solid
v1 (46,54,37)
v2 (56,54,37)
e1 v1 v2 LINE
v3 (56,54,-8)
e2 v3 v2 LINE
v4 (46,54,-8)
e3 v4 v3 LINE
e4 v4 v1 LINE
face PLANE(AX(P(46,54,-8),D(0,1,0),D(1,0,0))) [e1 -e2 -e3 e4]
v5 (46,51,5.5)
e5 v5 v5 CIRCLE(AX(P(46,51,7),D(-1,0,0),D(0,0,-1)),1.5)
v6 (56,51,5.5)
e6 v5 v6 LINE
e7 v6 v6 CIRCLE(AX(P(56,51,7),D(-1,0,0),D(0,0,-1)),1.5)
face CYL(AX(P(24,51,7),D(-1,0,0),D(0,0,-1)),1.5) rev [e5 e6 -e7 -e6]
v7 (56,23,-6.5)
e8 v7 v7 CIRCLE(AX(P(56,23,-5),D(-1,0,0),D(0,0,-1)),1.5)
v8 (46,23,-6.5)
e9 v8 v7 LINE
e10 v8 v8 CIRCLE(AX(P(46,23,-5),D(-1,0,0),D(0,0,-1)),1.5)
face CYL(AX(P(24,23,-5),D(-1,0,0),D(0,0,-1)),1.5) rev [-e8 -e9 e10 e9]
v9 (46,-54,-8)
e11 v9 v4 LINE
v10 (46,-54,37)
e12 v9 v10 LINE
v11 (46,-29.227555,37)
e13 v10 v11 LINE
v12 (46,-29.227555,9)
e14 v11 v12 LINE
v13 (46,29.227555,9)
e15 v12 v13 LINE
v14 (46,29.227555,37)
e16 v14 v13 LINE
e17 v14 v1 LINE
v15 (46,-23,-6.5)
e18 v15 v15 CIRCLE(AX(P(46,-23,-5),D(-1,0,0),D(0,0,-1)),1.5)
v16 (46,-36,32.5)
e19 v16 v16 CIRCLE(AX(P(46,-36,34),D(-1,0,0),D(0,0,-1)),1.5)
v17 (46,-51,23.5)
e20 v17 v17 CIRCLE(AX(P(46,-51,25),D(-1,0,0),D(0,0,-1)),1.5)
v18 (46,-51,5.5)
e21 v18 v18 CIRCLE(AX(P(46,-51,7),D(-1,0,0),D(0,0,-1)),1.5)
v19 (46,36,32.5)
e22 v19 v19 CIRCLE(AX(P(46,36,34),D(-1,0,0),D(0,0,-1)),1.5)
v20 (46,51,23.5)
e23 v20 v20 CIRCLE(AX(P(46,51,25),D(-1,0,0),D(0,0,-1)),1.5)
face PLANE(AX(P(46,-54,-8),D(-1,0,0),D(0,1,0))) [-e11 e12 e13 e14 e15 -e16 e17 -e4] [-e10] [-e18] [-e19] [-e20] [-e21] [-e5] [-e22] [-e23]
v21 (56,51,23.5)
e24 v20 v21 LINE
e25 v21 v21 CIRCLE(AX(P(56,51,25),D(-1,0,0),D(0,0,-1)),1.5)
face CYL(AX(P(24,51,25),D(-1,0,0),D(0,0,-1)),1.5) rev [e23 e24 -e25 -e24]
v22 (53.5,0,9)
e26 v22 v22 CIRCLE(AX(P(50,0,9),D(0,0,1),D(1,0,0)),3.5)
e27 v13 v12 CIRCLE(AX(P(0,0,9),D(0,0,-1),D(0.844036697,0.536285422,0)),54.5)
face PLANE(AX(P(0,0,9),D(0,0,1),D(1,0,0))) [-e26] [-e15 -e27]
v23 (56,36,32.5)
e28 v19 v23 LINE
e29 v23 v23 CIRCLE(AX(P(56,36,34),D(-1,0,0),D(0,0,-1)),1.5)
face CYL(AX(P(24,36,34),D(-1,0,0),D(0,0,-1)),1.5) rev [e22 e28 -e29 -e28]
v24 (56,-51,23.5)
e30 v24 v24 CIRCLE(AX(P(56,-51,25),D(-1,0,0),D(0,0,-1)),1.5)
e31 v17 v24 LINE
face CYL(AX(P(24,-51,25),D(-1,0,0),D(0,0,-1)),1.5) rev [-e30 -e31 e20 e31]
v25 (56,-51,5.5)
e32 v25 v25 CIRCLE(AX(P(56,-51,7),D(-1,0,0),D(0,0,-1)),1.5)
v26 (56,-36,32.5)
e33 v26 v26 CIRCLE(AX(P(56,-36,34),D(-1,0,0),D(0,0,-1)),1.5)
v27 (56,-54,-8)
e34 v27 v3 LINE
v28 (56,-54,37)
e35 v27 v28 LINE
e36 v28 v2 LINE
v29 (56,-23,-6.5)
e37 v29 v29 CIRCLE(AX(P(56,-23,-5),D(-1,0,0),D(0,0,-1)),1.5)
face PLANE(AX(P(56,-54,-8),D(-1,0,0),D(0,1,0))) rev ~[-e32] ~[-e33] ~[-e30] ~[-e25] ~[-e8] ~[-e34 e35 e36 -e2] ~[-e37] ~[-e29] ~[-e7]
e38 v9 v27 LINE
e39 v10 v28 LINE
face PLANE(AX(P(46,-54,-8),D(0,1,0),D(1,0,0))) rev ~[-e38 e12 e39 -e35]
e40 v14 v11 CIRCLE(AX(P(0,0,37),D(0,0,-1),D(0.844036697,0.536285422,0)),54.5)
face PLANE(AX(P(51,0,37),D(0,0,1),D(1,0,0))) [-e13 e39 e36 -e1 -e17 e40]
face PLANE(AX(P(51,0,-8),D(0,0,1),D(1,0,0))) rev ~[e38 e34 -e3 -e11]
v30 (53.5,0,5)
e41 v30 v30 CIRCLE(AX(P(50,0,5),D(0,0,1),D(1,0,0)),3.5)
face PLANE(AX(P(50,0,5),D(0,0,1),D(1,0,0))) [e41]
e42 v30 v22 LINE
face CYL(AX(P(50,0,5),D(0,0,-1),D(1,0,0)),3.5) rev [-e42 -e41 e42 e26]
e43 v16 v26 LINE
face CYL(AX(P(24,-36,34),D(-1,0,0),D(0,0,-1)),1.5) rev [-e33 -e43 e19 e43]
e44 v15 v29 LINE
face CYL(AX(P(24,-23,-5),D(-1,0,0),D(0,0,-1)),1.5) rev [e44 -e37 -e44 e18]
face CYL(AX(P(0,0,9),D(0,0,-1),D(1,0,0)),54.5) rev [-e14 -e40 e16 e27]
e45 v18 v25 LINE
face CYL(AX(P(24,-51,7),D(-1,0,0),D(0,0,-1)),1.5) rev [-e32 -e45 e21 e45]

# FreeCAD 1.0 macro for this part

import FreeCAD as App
import Part
import Sketcher

V = App.Vector


def add_polygon(sketch, points):
    """Adds a closed chain of lines whose ends are joined by coincident constraints."""
    first, n = sketch.GeometryCount, len(points)
    for a, b in zip(points, points[1:] + points[:1]):
        sketch.addGeometry(Part.LineSegment(App.Vector(*a, 0), App.Vector(*b, 0)), False)
    for i in range(n):
        sketch.addConstraint(Sketcher.Constraint("Coincident", first + i, 2, first + (i + 1) % n, 1))

doc = App.newDocument("Part")
body = doc.addObject("PartDesign::Body", "Body")

sketch1 = body.newObject("Sketcher::SketchObject", "Sketch")
sketch1.AttachmentSupport = (doc.getObject("XY_Plane"), [""])
sketch1.MapMode = "FlatFace"
sketch1.AttachmentOffset = App.Placement(V(0, 0, 5), App.Rotation())
sketch1.addGeometry(Part.Circle(V(50, 0, 0), V(0, 0, 1), 3.5), False)
sketch1.addConstraint([
    Sketcher.Constraint("PointOnObject", 0, 3, -1),
    Sketcher.Constraint("Diameter", 0, 7.0),
    Sketcher.Constraint("DistanceX", -1, 1, 0, 3, 50.0),
])
pad1 = body.newObject("PartDesign::Pad", "Pad")
pad1.Profile = sketch1
pad1.Length = 4
body2 = doc.addObject("PartDesign::Body", "Body001")

sketch2 = body2.newObject("Sketcher::SketchObject", "Sketch001")
sketch2.AttachmentSupport = (doc.getObject("XY_Plane001"), [""])
sketch2.MapMode = "FlatFace"
sketch2.AttachmentOffset = App.Placement(V(0, 0, 9), App.Rotation())
sketch2.addGeometry(Part.Circle(V(0, 0, 0), V(0, 0, 1), 54), False)
sketch2.addConstraint([
    Sketcher.Constraint("Coincident", 0, 3, -1, 1),
    Sketcher.Constraint("Diameter", 0, 109.0),
])
pad2 = body2.newObject("PartDesign::Pad", "Pad001")
pad2.Profile = sketch2
pad2.Length = 28
body3 = doc.addObject("PartDesign::Body", "Body002")

sketch3 = body3.newObject("Sketcher::SketchObject", "Sketch002")
sketch3.AttachmentSupport = (doc.getObject("YZ_Plane002"), [""])
sketch3.MapMode = "FlatFace"
sketch3.AttachmentOffset = App.Placement(V(0, 0, 24), App.Rotation())
sketch3.addGeometry(Part.Circle(V(-51, 25, 0), V(0, 0, 1), 1.5), False)
sketch3.addConstraint([
    Sketcher.Constraint("Diameter", 0, 3.0),
    Sketcher.Constraint("DistanceX", 0, 3, -1, 1, 51.0),
    Sketcher.Constraint("DistanceY", -1, 1, 0, 3, 25.0),
])
pad3 = body3.newObject("PartDesign::Pad", "Pad002")
pad3.Profile = sketch3
pad3.Length = 100
body4 = doc.addObject("PartDesign::Body", "Body003")

sketch4 = body4.newObject("Sketcher::SketchObject", "Sketch003")
sketch4.AttachmentSupport = (doc.getObject("YZ_Plane003"), [""])
sketch4.MapMode = "FlatFace"
sketch4.AttachmentOffset = App.Placement(V(0, 0, 24), App.Rotation())
sketch4.addGeometry(Part.Circle(V(36, 34, 0), V(0, 0, 1), 1.5), False)
sketch4.addConstraint([
    Sketcher.Constraint("Diameter", 0, 3.0),
    Sketcher.Constraint("DistanceX", -1, 1, 0, 3, 36.0),
    Sketcher.Constraint("DistanceY", -1, 1, 0, 3, 34.0),
])
pad4 = body4.newObject("PartDesign::Pad", "Pad003")
pad4.Profile = sketch4
pad4.Length = 100
body5 = doc.addObject("PartDesign::Body", "Body004")

sketch5 = body5.newObject("Sketcher::SketchObject", "Sketch004")
sketch5.AttachmentSupport = (doc.getObject("YZ_Plane004"), [""])
sketch5.MapMode = "FlatFace"
sketch5.AttachmentOffset = App.Placement(V(0, 0, 24), App.Rotation())
sketch5.addGeometry(Part.Circle(V(-36, 34, 0), V(0, 0, 1), 1.5), False)
sketch5.addConstraint([
    Sketcher.Constraint("Diameter", 0, 3.0),
    Sketcher.Constraint("DistanceX", 0, 3, -1, 1, 36.0),
    Sketcher.Constraint("DistanceY", -1, 1, 0, 3, 34.0),
])
pad5 = body5.newObject("PartDesign::Pad", "Pad004")
pad5.Profile = sketch5
pad5.Length = 100
body6 = doc.addObject("PartDesign::Body", "Body005")

sketch6 = body6.newObject("Sketcher::SketchObject", "Sketch005")
sketch6.AttachmentSupport = (doc.getObject("YZ_Plane005"), [""])
sketch6.MapMode = "FlatFace"
sketch6.AttachmentOffset = App.Placement(V(0, 0, 24), App.Rotation())
sketch6.addGeometry(Part.Circle(V(-23, -5, 0), V(0, 0, 1), 1.5), False)
sketch6.addConstraint([
    Sketcher.Constraint("Diameter", 0, 3.0),
    Sketcher.Constraint("DistanceX", 0, 3, -1, 1, 23.0),
    Sketcher.Constraint("DistanceY", 0, 3, -1, 1, 5.0),
])
pad6 = body6.newObject("PartDesign::Pad", "Pad005")
pad6.Profile = sketch6
pad6.Length = 100
body7 = doc.addObject("PartDesign::Body", "Body006")

sketch7 = body7.newObject("Sketcher::SketchObject", "Sketch006")
sketch7.AttachmentSupport = (doc.getObject("YZ_Plane006"), [""])
sketch7.MapMode = "FlatFace"
sketch7.AttachmentOffset = App.Placement(V(0, 0, 24), App.Rotation())
sketch7.addGeometry(Part.Circle(V(51, 7, 0), V(0, 0, 1), 1.5), False)
sketch7.addConstraint([
    Sketcher.Constraint("Diameter", 0, 3.0),
    Sketcher.Constraint("DistanceX", -1, 1, 0, 3, 51.0),
    Sketcher.Constraint("DistanceY", -1, 1, 0, 3, 7.0),
])
pad7 = body7.newObject("PartDesign::Pad", "Pad006")
pad7.Profile = sketch7
pad7.Length = 100
body8 = doc.addObject("PartDesign::Body", "Body007")

sketch8 = body8.newObject("Sketcher::SketchObject", "Sketch007")
sketch8.AttachmentSupport = (doc.getObject("YZ_Plane007"), [""])
sketch8.MapMode = "FlatFace"
sketch8.AttachmentOffset = App.Placement(V(0, 0, 24), App.Rotation())
sketch8.addGeometry(Part.Circle(V(23, -5, 0), V(0, 0, 1), 1.5), False)
sketch8.addConstraint([
    Sketcher.Constraint("Diameter", 0, 3.0),
    Sketcher.Constraint("DistanceX", -1, 1, 0, 3, 23.0),
    Sketcher.Constraint("DistanceY", 0, 3, -1, 1, 5.0),
])
pad8 = body8.newObject("PartDesign::Pad", "Pad007")
pad8.Profile = sketch8
pad8.Length = 100
body9 = doc.addObject("PartDesign::Body", "Body008")

sketch9 = body9.newObject("Sketcher::SketchObject", "Sketch008")
sketch9.AttachmentSupport = (doc.getObject("YZ_Plane008"), [""])
sketch9.MapMode = "FlatFace"
sketch9.AttachmentOffset = App.Placement(V(0, 0, 24), App.Rotation())
sketch9.addGeometry(Part.Circle(V(-51, 7, 0), V(0, 0, 1), 1.5), False)
sketch9.addConstraint([
    Sketcher.Constraint("Diameter", 0, 3.0),
    Sketcher.Constraint("DistanceX", 0, 3, -1, 1, 51.0),
    Sketcher.Constraint("DistanceY", -1, 1, 0, 3, 7.0),
])
pad9 = body9.newObject("PartDesign::Pad", "Pad008")
pad9.Profile = sketch9
pad9.Length = 100
body10 = doc.addObject("PartDesign::Body", "Body009")
body10.AllowCompound = True

sketch10 = body10.newObject("Sketcher::SketchObject", "Sketch009")
sketch10.AttachmentSupport = (doc.getObject("YZ_Plane009"), [""])
sketch10.MapMode = "FlatFace"
sketch10.AttachmentOffset = App.Placement(V(0, 0, 24), App.Rotation())
sketch10.addGeometry(Part.Circle(V(51, 25, 0), V(0, 0, 1), 1.5), False)
sketch10.addConstraint([
    Sketcher.Constraint("Diameter", 0, 3.0),
    Sketcher.Constraint("DistanceX", -1, 1, 0, 3, 51.0),
    Sketcher.Constraint("DistanceY", -1, 1, 0, 3, 25.0),
])
pad10 = body10.newObject("PartDesign::Pad", "Pad009")
pad10.Profile = sketch10
pad10.Length = 100
doc.recompute()

boolean = body10.newObject("PartDesign::Boolean", "Boolean")
boolean.Type = "Fuse"
boolean.addObjects([body3])
doc.recompute()

boolean2 = body10.newObject("PartDesign::Boolean", "Boolean001")
boolean2.Type = "Fuse"
boolean2.addObjects([body4])
doc.recompute()

boolean3 = body10.newObject("PartDesign::Boolean", "Boolean002")
boolean3.Type = "Fuse"
boolean3.addObjects([body5])
doc.recompute()

boolean4 = body10.newObject("PartDesign::Boolean", "Boolean003")
boolean4.Type = "Fuse"
boolean4.addObjects([body6])
doc.recompute()

boolean5 = body10.newObject("PartDesign::Boolean", "Boolean004")
boolean5.Type = "Fuse"
boolean5.addObjects([body7])
doc.recompute()

boolean6 = body10.newObject("PartDesign::Boolean", "Boolean005")
boolean6.Type = "Fuse"
boolean6.addObjects([body8])
doc.recompute()

boolean7 = body10.newObject("PartDesign::Boolean", "Boolean006")
boolean7.Type = "Fuse"
boolean7.addObjects([body9])
body11 = doc.addObject("PartDesign::Body", "Body010")

sketch11 = body11.newObject("Sketcher::SketchObject", "Sketch010")
sketch11.AttachmentSupport = (doc.getObject("XY_Plane010"), [""])
sketch11.MapMode = "FlatFace"
sketch11.AttachmentOffset = App.Placement(V(0, 0, -8), App.Rotation())
add_polygon(sketch11, [(46, 54), (46, -54), (56, -54), (56, 54)])
sketch11.addConstraint([
    Sketcher.Constraint("Vertical", 0),
    Sketcher.Constraint("Horizontal", 1),
    Sketcher.Constraint("Vertical", 2),
    Sketcher.Constraint("Horizontal", 3),
    Sketcher.Constraint("DistanceX", 1, 1, 1, 2, 10.0),
    Sketcher.Constraint("DistanceY", 0, 2, 0, 1, 108.0),
    Sketcher.Constraint("DistanceX", -1, 1, 0, 2, 46.0),
    Sketcher.Constraint("DistanceY", 0, 2, -1, 1, 54.0),
])
pad11 = body11.newObject("PartDesign::Pad", "Pad010")
pad11.Profile = sketch11
pad11.Length = 45
doc.recompute()

boolean8 = body11.newObject("PartDesign::Boolean", "Boolean007")
boolean8.Type = "Cut"
boolean8.addObjects([body10])
doc.recompute()

boolean9 = body11.newObject("PartDesign::Boolean", "Boolean008")
boolean9.Type = "Cut"
boolean9.addObjects([body2])
doc.recompute()

boolean10 = body11.newObject("PartDesign::Boolean", "Boolean009")
boolean10.Type = "Cut"
boolean10.addObjects([body])

doc.recompute()
